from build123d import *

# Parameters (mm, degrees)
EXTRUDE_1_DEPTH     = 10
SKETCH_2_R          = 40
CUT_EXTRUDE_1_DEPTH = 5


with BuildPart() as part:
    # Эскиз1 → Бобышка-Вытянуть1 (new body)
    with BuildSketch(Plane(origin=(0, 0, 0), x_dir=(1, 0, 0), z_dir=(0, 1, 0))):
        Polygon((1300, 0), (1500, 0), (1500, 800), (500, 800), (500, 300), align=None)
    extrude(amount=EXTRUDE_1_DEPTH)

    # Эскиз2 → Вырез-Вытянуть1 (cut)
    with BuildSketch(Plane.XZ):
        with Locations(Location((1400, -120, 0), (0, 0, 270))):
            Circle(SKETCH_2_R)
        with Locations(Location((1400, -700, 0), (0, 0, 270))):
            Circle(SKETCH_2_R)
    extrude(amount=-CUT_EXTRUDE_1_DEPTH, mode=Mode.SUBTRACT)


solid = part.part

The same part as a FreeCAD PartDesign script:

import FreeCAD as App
import Part
import Sketcher
from FreeCAD import Vector
Q = App.Units.Quantity

doc = App.newDocument("Part")
body = doc.addObject("PartDesign::Body", "Body")

sketch1 = body.newObject("Sketcher::SketchObject", "Sketch")
sketch1.AttachmentSupport = (doc.getObject("XZ_Plane"), [""])
sketch1.MapMode = "FlatFace"
sketch1.addGeometry(Part.LineSegment(Vector(1300, 0, 0), Vector(1500, 0, 0)), False)
sketch1.addGeometry(Part.LineSegment(Vector(1500, 0, 0), Vector(1500, -800, 0)), False)
sketch1.addGeometry(Part.LineSegment(Vector(1500, -800, 0), Vector(500, -800, 0)), False)
sketch1.addGeometry(Part.LineSegment(Vector(500, -800, 0), Vector(500, -300, 0)), False)
sketch1.addGeometry(Part.LineSegment(Vector(500, -300, 0), Vector(1300, 0, 0)), False)
sketch1.addConstraint(Sketcher.Constraint("Coincident", 0, 2, 1, 1))
sketch1.addConstraint(Sketcher.Constraint("Coincident", 1, 2, 2, 1))
sketch1.addConstraint(Sketcher.Constraint("Coincident", 2, 2, 3, 1))
sketch1.addConstraint(Sketcher.Constraint("Coincident", 3, 2, 4, 1))
sketch1.addConstraint(Sketcher.Constraint("Coincident", 4, 2, 0, 1))
sketch1.addConstraint(Sketcher.Constraint("Horizontal", 0))
sketch1.addConstraint(Sketcher.Constraint("Vertical", 1))
sketch1.addConstraint(Sketcher.Constraint("Horizontal", 2))
sketch1.addConstraint(Sketcher.Constraint("Vertical", 3))
sketch1.addConstraint(Sketcher.Constraint("PointOnObject", 0, 2, -1))
sketch1.addConstraint(Sketcher.Constraint("DistanceX", 0, 1, 0, 2, Q("200 mm")))
sketch1.addConstraint(Sketcher.Constraint("DistanceX", 2, 2, 2, 1, Q("1000 mm")))
sketch1.addConstraint(Sketcher.Constraint("DistanceY", 1, 2, 1, 1, Q("800 mm")))
sketch1.addConstraint(Sketcher.Constraint("DistanceY", 3, 1, 3, 2, Q("500 mm")))
sketch1.addConstraint(Sketcher.Constraint("DistanceX", -1, 1, 0, 2, Q("1500 mm")))
pad1 = body.newObject("PartDesign::Pad", "Pad")
pad1.Profile = sketch1
pad1.Length = 10
pad1.Reversed = True

sketch2 = body.newObject("Sketcher::SketchObject", "Sketch001")
sketch2.AttachmentSupport = (doc.getObject("XZ_Plane"), [""])
sketch2.MapMode = "FlatFace"
sketch2.addGeometry(Part.Circle(Vector(1400, -120, 0), Vector(0, 0, 1), 40), False)
sketch2.addGeometry(Part.Circle(Vector(1400, -700, 0), Vector(0, 0, 1), 40), False)
sketch2.addConstraint(Sketcher.Constraint("Equal", 0, 1))
sketch2.addConstraint(Sketcher.Constraint("Vertical", 0, 3, 1, 3))
sketch2.addConstraint(Sketcher.Constraint("Diameter", 0, Q("80 mm")))
sketch2.addConstraint(Sketcher.Constraint("DistanceX", -1, 1, 0, 3, Q("1400 mm")))
sketch2.addConstraint(Sketcher.Constraint("DistanceY", 0, 3, -1, 1, Q("120 mm")))
sketch2.addConstraint(Sketcher.Constraint("DistanceY", 1, 3, -1, 1, Q("700 mm")))
pocket1 = body.newObject("PartDesign::Pocket", "Pocket")
pocket1.Profile = sketch2
pocket1.Length = 5

doc.recompute()
